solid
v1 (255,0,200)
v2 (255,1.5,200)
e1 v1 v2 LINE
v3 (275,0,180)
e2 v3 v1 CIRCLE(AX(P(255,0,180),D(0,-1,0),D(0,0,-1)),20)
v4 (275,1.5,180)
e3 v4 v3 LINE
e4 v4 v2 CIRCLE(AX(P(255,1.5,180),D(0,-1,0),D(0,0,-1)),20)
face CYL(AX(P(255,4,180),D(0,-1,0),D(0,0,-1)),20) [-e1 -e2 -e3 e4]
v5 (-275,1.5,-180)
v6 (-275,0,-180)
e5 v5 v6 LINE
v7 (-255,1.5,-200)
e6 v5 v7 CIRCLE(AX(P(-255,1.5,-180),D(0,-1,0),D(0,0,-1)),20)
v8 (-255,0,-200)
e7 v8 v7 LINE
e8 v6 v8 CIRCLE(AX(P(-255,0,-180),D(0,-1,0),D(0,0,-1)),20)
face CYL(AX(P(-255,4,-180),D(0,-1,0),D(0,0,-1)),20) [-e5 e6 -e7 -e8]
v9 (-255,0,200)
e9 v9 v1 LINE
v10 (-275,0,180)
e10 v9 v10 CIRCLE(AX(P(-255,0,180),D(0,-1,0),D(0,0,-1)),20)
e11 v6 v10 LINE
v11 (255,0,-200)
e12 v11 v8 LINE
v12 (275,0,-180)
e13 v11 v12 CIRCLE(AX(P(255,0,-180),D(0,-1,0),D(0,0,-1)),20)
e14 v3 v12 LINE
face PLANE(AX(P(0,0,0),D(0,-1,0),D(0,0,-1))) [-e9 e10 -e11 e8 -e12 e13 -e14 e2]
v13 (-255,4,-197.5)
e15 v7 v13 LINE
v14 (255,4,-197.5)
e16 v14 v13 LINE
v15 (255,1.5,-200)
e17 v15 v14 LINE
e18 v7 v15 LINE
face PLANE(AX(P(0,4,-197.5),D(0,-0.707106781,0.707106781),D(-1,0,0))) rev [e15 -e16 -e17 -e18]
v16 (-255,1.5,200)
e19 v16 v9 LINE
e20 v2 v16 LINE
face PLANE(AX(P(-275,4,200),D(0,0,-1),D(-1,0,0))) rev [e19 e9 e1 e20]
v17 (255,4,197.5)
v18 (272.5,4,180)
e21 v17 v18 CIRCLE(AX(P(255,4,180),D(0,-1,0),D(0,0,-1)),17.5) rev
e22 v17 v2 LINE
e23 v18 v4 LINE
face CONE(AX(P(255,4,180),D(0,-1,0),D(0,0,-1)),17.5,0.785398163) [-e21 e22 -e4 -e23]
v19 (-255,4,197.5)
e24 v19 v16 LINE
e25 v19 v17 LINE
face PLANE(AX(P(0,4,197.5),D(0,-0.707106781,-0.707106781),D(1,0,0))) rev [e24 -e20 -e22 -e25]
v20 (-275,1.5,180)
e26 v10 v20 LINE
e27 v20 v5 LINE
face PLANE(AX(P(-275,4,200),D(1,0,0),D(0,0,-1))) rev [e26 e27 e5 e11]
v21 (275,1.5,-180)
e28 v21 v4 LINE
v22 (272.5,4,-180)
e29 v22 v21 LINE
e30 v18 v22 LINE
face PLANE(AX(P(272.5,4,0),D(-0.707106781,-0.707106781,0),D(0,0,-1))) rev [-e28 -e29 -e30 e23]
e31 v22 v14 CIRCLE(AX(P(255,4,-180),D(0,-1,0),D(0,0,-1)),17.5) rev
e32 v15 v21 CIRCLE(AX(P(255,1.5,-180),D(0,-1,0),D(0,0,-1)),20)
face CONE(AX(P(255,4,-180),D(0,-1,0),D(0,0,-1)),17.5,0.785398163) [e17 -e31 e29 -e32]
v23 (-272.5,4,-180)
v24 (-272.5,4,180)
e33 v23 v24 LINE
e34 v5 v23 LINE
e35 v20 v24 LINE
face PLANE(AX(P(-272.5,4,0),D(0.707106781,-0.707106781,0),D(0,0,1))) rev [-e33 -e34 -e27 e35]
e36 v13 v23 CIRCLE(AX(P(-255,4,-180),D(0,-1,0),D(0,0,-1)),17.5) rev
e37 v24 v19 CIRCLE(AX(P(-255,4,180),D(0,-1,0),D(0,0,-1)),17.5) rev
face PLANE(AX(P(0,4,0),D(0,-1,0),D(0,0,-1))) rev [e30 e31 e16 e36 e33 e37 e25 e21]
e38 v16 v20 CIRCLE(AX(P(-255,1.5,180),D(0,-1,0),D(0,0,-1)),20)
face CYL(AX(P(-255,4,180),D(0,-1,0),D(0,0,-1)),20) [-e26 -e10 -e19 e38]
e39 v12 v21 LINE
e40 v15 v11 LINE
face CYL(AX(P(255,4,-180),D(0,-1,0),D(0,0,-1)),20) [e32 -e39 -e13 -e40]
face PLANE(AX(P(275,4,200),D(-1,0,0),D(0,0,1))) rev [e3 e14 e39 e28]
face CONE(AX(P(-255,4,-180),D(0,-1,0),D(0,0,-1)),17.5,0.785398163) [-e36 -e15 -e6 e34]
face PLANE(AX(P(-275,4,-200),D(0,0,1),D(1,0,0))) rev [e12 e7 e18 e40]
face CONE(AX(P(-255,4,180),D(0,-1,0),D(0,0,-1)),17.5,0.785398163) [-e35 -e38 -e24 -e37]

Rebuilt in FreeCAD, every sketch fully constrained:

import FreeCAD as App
import Part
import Sketcher
from FreeCAD import Vector


def edges_at(feature, points):
    """Names of the edges that pass closest to the given points."""
    edges = feature.Shape.Edges
    near = lambda p: min(range(len(edges)), key=lambda i: edges[i].distToShape(Part.Vertex(*p))[0])
    return sorted({f"Edge{near(p) + 1}" for p in points})

doc = App.newDocument("Part")
body = doc.addObject("PartDesign::Body", "Body")

# Sketch on XZ plane
sketch1 = body.newObject("Sketcher::SketchObject", "Sketch")
sketch1.AttachmentSupport = (doc.getObject("XZ_Plane"), [""])
sketch1.MapMode = "FlatFace"
sketch1.addGeometry(Part.LineSegment(Vector(-275, -200, 0), Vector(-275, 200, 0)), False)
sketch1.addGeometry(Part.LineSegment(Vector(-275, 200, 0), Vector(275, 200, 0)), False)
sketch1.addGeometry(Part.LineSegment(Vector(275, 200, 0), Vector(275, -200, 0)), False)
sketch1.addGeometry(Part.LineSegment(Vector(275, -200, 0), Vector(-275, -200, 0)), False)
sketch1.addConstraint(Sketcher.Constraint("Coincident", 0, 2, 1, 1))
sketch1.addConstraint(Sketcher.Constraint("Coincident", 1, 2, 2, 1))
sketch1.addConstraint(Sketcher.Constraint("Coincident", 2, 2, 3, 1))
sketch1.addConstraint(Sketcher.Constraint("Coincident", 3, 2, 0, 1))
sketch1.addConstraint(Sketcher.Constraint("Vertical", 0))
sketch1.addConstraint(Sketcher.Constraint("Horizontal", 1))
sketch1.addConstraint(Sketcher.Constraint("Vertical", 2))
sketch1.addConstraint(Sketcher.Constraint("Horizontal", 3))
sketch1.addConstraint(Sketcher.Constraint("Symmetric", 0, 2, 2, 2, -1, 1))
sketch1.addConstraint(Sketcher.Constraint("DistanceX", 1, 1, 1, 2, 550.0))
sketch1.addConstraint(Sketcher.Constraint("DistanceY", 0, 1, 0, 2, 400.0))
pad1 = body.newObject("PartDesign::Pad", "Pad")
pad1.Profile = sketch1
pad1.Length = 4
pad1.Reversed = True
doc.recompute()

fillet = body.newObject("PartDesign::Fillet", "Fillet")
fillet.Base = (pad1, edges_at(pad1, [
    (275, 2, 200),
    (-275, 2, 200),
    (-275, 2, -200),
    (275, 2, -200),
]))
fillet.Radius = 20
doc.recompute()

chamfer = body.newObject("PartDesign::Chamfer", "Chamfer")
chamfer.Base = (fillet, edges_at(fillet, [
    (-275, 4, 0),
    (0, 4, -200),
    (275, 4, 0),
    (0, 4, 200),
    (269.142, 4, 194.142),
    (269.142, 4, -194.142),
    (-269.142, 4, 194.142),
    (-269.142, 4, -194.142),
]))
chamfer.Size = 2.5

doc.recompute()
